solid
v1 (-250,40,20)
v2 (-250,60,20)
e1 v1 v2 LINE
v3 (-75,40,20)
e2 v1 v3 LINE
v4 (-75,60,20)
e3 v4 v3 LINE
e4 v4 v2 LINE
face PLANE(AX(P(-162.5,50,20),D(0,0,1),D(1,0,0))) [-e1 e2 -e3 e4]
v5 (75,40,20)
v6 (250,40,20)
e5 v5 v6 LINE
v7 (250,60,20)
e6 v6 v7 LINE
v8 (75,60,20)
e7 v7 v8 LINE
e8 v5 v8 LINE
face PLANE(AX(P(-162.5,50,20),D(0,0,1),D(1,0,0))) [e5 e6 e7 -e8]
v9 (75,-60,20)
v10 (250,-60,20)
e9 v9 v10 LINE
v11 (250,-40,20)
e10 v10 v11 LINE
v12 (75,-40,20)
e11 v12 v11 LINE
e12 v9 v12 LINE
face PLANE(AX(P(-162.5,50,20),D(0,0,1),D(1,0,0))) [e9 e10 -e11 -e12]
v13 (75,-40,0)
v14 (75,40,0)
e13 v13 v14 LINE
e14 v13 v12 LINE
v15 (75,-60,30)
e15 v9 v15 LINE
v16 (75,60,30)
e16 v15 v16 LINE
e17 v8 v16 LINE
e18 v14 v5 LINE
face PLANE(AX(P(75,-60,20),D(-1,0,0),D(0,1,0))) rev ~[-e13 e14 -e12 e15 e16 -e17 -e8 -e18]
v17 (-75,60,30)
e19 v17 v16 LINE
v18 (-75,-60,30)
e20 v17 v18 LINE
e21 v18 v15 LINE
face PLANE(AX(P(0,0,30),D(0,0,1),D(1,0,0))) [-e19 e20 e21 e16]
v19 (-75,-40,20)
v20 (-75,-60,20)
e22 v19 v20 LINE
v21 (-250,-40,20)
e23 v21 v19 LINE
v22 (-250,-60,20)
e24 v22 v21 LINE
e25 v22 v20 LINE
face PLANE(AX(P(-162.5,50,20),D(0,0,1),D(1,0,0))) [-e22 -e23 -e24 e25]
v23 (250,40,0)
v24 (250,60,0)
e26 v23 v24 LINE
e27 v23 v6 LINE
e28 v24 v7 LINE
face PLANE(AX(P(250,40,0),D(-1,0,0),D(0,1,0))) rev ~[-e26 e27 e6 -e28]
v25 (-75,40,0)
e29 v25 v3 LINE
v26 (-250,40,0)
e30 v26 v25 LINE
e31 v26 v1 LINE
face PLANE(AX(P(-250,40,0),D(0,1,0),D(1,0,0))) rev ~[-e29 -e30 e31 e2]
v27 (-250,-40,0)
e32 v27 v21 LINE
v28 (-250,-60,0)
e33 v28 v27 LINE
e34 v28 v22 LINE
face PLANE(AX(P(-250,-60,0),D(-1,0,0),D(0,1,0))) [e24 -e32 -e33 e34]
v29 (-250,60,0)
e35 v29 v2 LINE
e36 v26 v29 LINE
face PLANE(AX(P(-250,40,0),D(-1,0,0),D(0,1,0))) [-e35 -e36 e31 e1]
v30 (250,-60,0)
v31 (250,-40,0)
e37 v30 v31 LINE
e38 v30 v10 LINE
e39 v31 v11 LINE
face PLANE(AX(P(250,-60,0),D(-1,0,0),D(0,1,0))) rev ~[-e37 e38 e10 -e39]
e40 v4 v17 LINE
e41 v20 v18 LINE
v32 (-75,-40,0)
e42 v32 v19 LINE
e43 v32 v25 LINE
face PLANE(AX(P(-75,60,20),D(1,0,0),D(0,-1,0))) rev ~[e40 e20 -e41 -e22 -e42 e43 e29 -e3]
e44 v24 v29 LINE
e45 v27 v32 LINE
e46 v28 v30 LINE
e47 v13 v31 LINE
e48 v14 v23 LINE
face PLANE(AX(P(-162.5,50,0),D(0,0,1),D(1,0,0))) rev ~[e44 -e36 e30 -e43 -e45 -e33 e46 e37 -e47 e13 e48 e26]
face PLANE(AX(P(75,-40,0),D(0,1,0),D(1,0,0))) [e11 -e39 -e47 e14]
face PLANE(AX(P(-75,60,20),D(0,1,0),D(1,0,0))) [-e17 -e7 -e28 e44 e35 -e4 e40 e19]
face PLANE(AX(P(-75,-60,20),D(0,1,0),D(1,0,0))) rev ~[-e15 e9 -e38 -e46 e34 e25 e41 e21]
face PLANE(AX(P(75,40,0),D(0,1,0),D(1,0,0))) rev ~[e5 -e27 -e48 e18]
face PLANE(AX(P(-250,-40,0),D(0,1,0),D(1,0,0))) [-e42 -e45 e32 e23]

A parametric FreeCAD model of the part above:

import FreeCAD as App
import Part
import Sketcher
from FreeCAD import Vector


def add_polygon(sketch, points):
    """Adds a closed chain of lines whose ends are joined by coincident constraints."""
    first, n = sketch.GeometryCount, len(points)
    for a, b in zip(points, points[1:] + points[:1]):
        sketch.addGeometry(Part.LineSegment(App.Vector(*a, 0), App.Vector(*b, 0)), False)
    for i in range(n):
        sketch.addConstraint(Sketcher.Constraint("Coincident", first + i, 2, first + (i + 1) % n, 1))

doc = App.newDocument("Part")
params = doc.addObject("Spreadsheet::Sheet", "Params")
for row, (alias, value) in enumerate([
    ("sketch1_width", "175 mm"),
    ("sketch1_width2", "500 mm"),
    ("sketch1_height", "20 mm"),
    ("sketch1_height2", "80 mm"),
    ("pad1_length", "20 mm"),
    ("sketch2_width", "150 mm"),
    ("sketch2_height", "120 mm"),
    ("pad2_length", "10 mm"),
], start=1):
    params.set(f"A{row}", alias)
    params.set(f"B{row}", "=" + value)
    params.setAlias(f"B{row}", alias)

body = doc.addObject("PartDesign::Body", "Body")

# Sketch on XY plane
sketch1 = body.newObject("Sketcher::SketchObject", "Sketch")
sketch1.AttachmentSupport = (doc.getObject("XY_Plane"), [""])
sketch1.MapMode = "FlatFace"
add_polygon(sketch1, [(-250, 60), (-250, 40), (-75, 40), (-75, -40), (-250, -40), (-250, -60), (250, -60), (250, -40), (75, -40), (75, 40), (250, 40), (250, 60)])  # lines 0-11
sketch1.addConstraint([
    Sketcher.Constraint("Vertical", 0),
    Sketcher.Constraint("Horizontal", 1),
    Sketcher.Constraint("Vertical", 2),
    Sketcher.Constraint("Horizontal", 3),
    Sketcher.Constraint("Vertical", 4),
    Sketcher.Constraint("Horizontal", 5),
    Sketcher.Constraint("Vertical", 6),
    Sketcher.Constraint("Horizontal", 7),
    Sketcher.Constraint("Vertical", 8),
    Sketcher.Constraint("Horizontal", 9),
    Sketcher.Constraint("Vertical", 10),
    Sketcher.Constraint("Horizontal", 11),
    Sketcher.Constraint("Symmetric", 0, 2, 6, 2, -1, 1),
    Sketcher.Constraint("Symmetric", 2, 2, 8, 2, -1, 1),
    Sketcher.Constraint("Symmetric", 4, 2, 10, 2, -1, 1),
    Sketcher.Constraint("Symmetric", 3, 2, 6, 2, -2),
    Sketcher.Constraint("DistanceX", 1, 1, 1, 2, 175.0),
    Sketcher.Constraint("DistanceX", 5, 1, 5, 2, 500.0),
    Sketcher.Constraint("DistanceY", 0, 2, 0, 1, 20.0),
    Sketcher.Constraint("DistanceY", 2, 2, 2, 1, 80.0),
])
sketch1.setExpression("Constraints[28]", "Params.sketch1_width")
sketch1.setExpression("Constraints[29]", "Params.sketch1_width2")
sketch1.setExpression("Constraints[30]", "Params.sketch1_height")
sketch1.setExpression("Constraints[31]", "Params.sketch1_height2")
pad1 = body.newObject("PartDesign::Pad", "Pad")
pad1.Profile = sketch1
pad1.setExpression("Length", "Params.pad1_length")

# Sketch on XY plane
sketch2 = body.newObject("Sketcher::SketchObject", "Sketch001")
sketch2.AttachmentSupport = (doc.getObject("XY_Plane"), [""])
sketch2.MapMode = "FlatFace"
sketch2.AttachmentOffset = App.Placement(Vector(0, 0, 20), App.Rotation())
add_polygon(sketch2, [(75, 60), (-75, 60), (-75, -60), (75, -60)])  # lines 0-3
sketch2.addConstraint([
    Sketcher.Constraint("Horizontal", 0),
    Sketcher.Constraint("Vertical", 1),
    Sketcher.Constraint("Horizontal", 2),
    Sketcher.Constraint("Vertical", 3),
    Sketcher.Constraint("Symmetric", 0, 2, 2, 2, -1, 1),
    Sketcher.Constraint("DistanceX", 0, 2, 0, 1, 150.0),
    Sketcher.Constraint("DistanceY", 1, 2, 1, 1, 120.0),
])
sketch2.setExpression("Constraints[9]", "Params.sketch2_width")
sketch2.setExpression("Constraints[10]", "Params.sketch2_height")
pad2 = body.newObject("PartDesign::Pad", "Pad001")
pad2.Profile = sketch2
pad2.setExpression("Length", "Params.pad2_length")

doc.recompute()
